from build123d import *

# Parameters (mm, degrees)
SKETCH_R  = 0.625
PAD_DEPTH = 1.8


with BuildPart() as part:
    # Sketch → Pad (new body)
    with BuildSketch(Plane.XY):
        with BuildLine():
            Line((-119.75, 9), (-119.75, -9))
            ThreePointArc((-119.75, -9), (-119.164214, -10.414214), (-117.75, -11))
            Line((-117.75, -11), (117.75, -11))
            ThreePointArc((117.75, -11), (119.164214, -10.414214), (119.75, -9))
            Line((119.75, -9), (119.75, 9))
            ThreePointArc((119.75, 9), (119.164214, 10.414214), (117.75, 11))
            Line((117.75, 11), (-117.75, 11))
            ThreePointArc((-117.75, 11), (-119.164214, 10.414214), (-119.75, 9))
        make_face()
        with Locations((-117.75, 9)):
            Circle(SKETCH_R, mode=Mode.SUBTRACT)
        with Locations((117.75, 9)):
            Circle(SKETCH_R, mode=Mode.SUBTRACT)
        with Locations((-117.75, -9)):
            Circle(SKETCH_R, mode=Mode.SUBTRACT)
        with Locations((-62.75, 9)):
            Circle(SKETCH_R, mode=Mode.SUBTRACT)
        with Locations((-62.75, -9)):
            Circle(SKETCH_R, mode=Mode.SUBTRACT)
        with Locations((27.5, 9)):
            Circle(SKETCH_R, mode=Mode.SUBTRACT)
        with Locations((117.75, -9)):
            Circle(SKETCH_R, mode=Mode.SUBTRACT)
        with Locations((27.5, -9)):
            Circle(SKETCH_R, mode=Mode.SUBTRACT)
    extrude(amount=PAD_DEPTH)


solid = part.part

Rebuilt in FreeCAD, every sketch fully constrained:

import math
import FreeCAD as App
import Part
import Sketcher
from FreeCAD import Vector
Q = App.Units.Quantity

doc = App.newDocument("Part")
body = doc.addObject("PartDesign::Body", "Body")

# Sketch on XY plane
sketch1 = body.newObject("Sketcher::SketchObject", "Sketch")
sketch1.AttachmentSupport = (doc.getObject("XY_Plane"), [""])
sketch1.MapMode = "FlatFace"
sketch1.addGeometry([
    Part.LineSegment(Vector(-119.8, 9, 0), Vector(-119.8, -9, 0)),  # 0
    Part.ArcOfCircle(Part.Circle(Vector(-117.8, -9, 0), Vector(0, 0, 1), 2), math.radians(180), math.radians(270)),  # 1
    Part.LineSegment(Vector(-117.8, -11, 0), Vector(117.8, -11, 0)),  # 2
    Part.ArcOfCircle(Part.Circle(Vector(117.8, -9, 0), Vector(0, 0, 1), 2), math.radians(-90), math.radians(0)),  # 3
    Part.LineSegment(Vector(119.8, -9, 0), Vector(119.8, 9, 0)),  # 4
    Part.ArcOfCircle(Part.Circle(Vector(117.8, 9, 0), Vector(0, 0, 1), 2), math.radians(0), math.radians(90)),  # 5
    Part.LineSegment(Vector(117.8, 11, 0), Vector(-117.8, 11, 0)),  # 6
    Part.ArcOfCircle(Part.Circle(Vector(-117.8, 9, 0), Vector(0, 0, 1), 2), math.radians(90), math.radians(180)),  # 7
    Part.Circle(Vector(-117.8, -9, 0), Vector(0, 0, 1), 0.6),  # 8
    Part.Circle(Vector(-62.8, -9, 0), Vector(0, 0, 1), 0.6),  # 9
    Part.Circle(Vector(27.5, -9, 0), Vector(0, 0, 1), 0.6),  # 10
    Part.Circle(Vector(117.8, -9, 0), Vector(0, 0, 1), 0.6),  # 11
    Part.Circle(Vector(-117.8, 9, 0), Vector(0, 0, 1), 0.6),  # 12
    Part.Circle(Vector(-62.8, 9, 0), Vector(0, 0, 1), 0.6),  # 13
    Part.Circle(Vector(27.5, 9, 0), Vector(0, 0, 1), 0.6),  # 14
    Part.Circle(Vector(117.8, 9, 0), Vector(0, 0, 1), 0.6),  # 15
], False)
sketch1.addConstraint([
    Sketcher.Constraint("Tangent", 0, 2, 1, 1),
    Sketcher.Constraint("Tangent", 1, 2, 2, 1),
    Sketcher.Constraint("Tangent", 2, 2, 3, 1),
    Sketcher.Constraint("Tangent", 3, 2, 4, 1),
    Sketcher.Constraint("Tangent", 4, 2, 5, 1),
    Sketcher.Constraint("Tangent", 5, 2, 6, 1),
    Sketcher.Constraint("Tangent", 6, 2, 7, 1),
    Sketcher.Constraint("Tangent", 7, 2, 0, 1),
    Sketcher.Constraint("Vertical", 0),
    Sketcher.Constraint("Horizontal", 2),
    Sketcher.Constraint("Vertical", 4),
    Sketcher.Constraint("Horizontal", 6),
    Sketcher.Constraint("Coincident", 8, 3, 1, 3),
    Sketcher.Constraint("Coincident", 11, 3, 3, 3),
    Sketcher.Constraint("Coincident", 12, 3, 7, 3),
    Sketcher.Constraint("Coincident", 15, 3, 5, 3),
    Sketcher.Constraint("Equal", 1, 3),
    Sketcher.Constraint("Equal", 3, 5),
    Sketcher.Constraint("Equal", 5, 7),
    Sketcher.Constraint("Equal", 8, 9),
    Sketcher.Constraint("Equal", 9, 10),
    Sketcher.Constraint("Equal", 10, 11),
    Sketcher.Constraint("Equal", 11, 12),
    Sketcher.Constraint("Equal", 12, 13),
    Sketcher.Constraint("Equal", 13, 14),
    Sketcher.Constraint("Equal", 14, 15),
    Sketcher.Constraint("Symmetric", 1, 3, 5, 3, -1, 1),
    Sketcher.Constraint("Symmetric", 9, 3, 13, 3, -1),
    Sketcher.Constraint("Symmetric", 10, 3, 14, 3, -1),
    Sketcher.Constraint("Horizontal", 8, 3, 9, 3),
    Sketcher.Constraint("Horizontal", 9, 3, 10, 3),
    Sketcher.Constraint("Radius", 1, Q("1.999999 mm")),
    Sketcher.Constraint("Diameter", 8, Q("1.25 mm")),
    Sketcher.Constraint("DistanceY", 0, 2, 0, 1, Q("18 mm")),
    Sketcher.Constraint("DistanceX", 2, 1, 2, 2, Q("235.5 mm")),
    Sketcher.Constraint("DistanceX", 8, 3, 9, 3, Q("55 mm")),
    Sketcher.Constraint("DistanceX", -1, 1, 10, 3, Q("27.5 mm")),
])
pad1 = body.newObject("PartDesign::Pad", "Pad")
pad1.Profile = sketch1
pad1.Length = 1.8

doc.recompute()
